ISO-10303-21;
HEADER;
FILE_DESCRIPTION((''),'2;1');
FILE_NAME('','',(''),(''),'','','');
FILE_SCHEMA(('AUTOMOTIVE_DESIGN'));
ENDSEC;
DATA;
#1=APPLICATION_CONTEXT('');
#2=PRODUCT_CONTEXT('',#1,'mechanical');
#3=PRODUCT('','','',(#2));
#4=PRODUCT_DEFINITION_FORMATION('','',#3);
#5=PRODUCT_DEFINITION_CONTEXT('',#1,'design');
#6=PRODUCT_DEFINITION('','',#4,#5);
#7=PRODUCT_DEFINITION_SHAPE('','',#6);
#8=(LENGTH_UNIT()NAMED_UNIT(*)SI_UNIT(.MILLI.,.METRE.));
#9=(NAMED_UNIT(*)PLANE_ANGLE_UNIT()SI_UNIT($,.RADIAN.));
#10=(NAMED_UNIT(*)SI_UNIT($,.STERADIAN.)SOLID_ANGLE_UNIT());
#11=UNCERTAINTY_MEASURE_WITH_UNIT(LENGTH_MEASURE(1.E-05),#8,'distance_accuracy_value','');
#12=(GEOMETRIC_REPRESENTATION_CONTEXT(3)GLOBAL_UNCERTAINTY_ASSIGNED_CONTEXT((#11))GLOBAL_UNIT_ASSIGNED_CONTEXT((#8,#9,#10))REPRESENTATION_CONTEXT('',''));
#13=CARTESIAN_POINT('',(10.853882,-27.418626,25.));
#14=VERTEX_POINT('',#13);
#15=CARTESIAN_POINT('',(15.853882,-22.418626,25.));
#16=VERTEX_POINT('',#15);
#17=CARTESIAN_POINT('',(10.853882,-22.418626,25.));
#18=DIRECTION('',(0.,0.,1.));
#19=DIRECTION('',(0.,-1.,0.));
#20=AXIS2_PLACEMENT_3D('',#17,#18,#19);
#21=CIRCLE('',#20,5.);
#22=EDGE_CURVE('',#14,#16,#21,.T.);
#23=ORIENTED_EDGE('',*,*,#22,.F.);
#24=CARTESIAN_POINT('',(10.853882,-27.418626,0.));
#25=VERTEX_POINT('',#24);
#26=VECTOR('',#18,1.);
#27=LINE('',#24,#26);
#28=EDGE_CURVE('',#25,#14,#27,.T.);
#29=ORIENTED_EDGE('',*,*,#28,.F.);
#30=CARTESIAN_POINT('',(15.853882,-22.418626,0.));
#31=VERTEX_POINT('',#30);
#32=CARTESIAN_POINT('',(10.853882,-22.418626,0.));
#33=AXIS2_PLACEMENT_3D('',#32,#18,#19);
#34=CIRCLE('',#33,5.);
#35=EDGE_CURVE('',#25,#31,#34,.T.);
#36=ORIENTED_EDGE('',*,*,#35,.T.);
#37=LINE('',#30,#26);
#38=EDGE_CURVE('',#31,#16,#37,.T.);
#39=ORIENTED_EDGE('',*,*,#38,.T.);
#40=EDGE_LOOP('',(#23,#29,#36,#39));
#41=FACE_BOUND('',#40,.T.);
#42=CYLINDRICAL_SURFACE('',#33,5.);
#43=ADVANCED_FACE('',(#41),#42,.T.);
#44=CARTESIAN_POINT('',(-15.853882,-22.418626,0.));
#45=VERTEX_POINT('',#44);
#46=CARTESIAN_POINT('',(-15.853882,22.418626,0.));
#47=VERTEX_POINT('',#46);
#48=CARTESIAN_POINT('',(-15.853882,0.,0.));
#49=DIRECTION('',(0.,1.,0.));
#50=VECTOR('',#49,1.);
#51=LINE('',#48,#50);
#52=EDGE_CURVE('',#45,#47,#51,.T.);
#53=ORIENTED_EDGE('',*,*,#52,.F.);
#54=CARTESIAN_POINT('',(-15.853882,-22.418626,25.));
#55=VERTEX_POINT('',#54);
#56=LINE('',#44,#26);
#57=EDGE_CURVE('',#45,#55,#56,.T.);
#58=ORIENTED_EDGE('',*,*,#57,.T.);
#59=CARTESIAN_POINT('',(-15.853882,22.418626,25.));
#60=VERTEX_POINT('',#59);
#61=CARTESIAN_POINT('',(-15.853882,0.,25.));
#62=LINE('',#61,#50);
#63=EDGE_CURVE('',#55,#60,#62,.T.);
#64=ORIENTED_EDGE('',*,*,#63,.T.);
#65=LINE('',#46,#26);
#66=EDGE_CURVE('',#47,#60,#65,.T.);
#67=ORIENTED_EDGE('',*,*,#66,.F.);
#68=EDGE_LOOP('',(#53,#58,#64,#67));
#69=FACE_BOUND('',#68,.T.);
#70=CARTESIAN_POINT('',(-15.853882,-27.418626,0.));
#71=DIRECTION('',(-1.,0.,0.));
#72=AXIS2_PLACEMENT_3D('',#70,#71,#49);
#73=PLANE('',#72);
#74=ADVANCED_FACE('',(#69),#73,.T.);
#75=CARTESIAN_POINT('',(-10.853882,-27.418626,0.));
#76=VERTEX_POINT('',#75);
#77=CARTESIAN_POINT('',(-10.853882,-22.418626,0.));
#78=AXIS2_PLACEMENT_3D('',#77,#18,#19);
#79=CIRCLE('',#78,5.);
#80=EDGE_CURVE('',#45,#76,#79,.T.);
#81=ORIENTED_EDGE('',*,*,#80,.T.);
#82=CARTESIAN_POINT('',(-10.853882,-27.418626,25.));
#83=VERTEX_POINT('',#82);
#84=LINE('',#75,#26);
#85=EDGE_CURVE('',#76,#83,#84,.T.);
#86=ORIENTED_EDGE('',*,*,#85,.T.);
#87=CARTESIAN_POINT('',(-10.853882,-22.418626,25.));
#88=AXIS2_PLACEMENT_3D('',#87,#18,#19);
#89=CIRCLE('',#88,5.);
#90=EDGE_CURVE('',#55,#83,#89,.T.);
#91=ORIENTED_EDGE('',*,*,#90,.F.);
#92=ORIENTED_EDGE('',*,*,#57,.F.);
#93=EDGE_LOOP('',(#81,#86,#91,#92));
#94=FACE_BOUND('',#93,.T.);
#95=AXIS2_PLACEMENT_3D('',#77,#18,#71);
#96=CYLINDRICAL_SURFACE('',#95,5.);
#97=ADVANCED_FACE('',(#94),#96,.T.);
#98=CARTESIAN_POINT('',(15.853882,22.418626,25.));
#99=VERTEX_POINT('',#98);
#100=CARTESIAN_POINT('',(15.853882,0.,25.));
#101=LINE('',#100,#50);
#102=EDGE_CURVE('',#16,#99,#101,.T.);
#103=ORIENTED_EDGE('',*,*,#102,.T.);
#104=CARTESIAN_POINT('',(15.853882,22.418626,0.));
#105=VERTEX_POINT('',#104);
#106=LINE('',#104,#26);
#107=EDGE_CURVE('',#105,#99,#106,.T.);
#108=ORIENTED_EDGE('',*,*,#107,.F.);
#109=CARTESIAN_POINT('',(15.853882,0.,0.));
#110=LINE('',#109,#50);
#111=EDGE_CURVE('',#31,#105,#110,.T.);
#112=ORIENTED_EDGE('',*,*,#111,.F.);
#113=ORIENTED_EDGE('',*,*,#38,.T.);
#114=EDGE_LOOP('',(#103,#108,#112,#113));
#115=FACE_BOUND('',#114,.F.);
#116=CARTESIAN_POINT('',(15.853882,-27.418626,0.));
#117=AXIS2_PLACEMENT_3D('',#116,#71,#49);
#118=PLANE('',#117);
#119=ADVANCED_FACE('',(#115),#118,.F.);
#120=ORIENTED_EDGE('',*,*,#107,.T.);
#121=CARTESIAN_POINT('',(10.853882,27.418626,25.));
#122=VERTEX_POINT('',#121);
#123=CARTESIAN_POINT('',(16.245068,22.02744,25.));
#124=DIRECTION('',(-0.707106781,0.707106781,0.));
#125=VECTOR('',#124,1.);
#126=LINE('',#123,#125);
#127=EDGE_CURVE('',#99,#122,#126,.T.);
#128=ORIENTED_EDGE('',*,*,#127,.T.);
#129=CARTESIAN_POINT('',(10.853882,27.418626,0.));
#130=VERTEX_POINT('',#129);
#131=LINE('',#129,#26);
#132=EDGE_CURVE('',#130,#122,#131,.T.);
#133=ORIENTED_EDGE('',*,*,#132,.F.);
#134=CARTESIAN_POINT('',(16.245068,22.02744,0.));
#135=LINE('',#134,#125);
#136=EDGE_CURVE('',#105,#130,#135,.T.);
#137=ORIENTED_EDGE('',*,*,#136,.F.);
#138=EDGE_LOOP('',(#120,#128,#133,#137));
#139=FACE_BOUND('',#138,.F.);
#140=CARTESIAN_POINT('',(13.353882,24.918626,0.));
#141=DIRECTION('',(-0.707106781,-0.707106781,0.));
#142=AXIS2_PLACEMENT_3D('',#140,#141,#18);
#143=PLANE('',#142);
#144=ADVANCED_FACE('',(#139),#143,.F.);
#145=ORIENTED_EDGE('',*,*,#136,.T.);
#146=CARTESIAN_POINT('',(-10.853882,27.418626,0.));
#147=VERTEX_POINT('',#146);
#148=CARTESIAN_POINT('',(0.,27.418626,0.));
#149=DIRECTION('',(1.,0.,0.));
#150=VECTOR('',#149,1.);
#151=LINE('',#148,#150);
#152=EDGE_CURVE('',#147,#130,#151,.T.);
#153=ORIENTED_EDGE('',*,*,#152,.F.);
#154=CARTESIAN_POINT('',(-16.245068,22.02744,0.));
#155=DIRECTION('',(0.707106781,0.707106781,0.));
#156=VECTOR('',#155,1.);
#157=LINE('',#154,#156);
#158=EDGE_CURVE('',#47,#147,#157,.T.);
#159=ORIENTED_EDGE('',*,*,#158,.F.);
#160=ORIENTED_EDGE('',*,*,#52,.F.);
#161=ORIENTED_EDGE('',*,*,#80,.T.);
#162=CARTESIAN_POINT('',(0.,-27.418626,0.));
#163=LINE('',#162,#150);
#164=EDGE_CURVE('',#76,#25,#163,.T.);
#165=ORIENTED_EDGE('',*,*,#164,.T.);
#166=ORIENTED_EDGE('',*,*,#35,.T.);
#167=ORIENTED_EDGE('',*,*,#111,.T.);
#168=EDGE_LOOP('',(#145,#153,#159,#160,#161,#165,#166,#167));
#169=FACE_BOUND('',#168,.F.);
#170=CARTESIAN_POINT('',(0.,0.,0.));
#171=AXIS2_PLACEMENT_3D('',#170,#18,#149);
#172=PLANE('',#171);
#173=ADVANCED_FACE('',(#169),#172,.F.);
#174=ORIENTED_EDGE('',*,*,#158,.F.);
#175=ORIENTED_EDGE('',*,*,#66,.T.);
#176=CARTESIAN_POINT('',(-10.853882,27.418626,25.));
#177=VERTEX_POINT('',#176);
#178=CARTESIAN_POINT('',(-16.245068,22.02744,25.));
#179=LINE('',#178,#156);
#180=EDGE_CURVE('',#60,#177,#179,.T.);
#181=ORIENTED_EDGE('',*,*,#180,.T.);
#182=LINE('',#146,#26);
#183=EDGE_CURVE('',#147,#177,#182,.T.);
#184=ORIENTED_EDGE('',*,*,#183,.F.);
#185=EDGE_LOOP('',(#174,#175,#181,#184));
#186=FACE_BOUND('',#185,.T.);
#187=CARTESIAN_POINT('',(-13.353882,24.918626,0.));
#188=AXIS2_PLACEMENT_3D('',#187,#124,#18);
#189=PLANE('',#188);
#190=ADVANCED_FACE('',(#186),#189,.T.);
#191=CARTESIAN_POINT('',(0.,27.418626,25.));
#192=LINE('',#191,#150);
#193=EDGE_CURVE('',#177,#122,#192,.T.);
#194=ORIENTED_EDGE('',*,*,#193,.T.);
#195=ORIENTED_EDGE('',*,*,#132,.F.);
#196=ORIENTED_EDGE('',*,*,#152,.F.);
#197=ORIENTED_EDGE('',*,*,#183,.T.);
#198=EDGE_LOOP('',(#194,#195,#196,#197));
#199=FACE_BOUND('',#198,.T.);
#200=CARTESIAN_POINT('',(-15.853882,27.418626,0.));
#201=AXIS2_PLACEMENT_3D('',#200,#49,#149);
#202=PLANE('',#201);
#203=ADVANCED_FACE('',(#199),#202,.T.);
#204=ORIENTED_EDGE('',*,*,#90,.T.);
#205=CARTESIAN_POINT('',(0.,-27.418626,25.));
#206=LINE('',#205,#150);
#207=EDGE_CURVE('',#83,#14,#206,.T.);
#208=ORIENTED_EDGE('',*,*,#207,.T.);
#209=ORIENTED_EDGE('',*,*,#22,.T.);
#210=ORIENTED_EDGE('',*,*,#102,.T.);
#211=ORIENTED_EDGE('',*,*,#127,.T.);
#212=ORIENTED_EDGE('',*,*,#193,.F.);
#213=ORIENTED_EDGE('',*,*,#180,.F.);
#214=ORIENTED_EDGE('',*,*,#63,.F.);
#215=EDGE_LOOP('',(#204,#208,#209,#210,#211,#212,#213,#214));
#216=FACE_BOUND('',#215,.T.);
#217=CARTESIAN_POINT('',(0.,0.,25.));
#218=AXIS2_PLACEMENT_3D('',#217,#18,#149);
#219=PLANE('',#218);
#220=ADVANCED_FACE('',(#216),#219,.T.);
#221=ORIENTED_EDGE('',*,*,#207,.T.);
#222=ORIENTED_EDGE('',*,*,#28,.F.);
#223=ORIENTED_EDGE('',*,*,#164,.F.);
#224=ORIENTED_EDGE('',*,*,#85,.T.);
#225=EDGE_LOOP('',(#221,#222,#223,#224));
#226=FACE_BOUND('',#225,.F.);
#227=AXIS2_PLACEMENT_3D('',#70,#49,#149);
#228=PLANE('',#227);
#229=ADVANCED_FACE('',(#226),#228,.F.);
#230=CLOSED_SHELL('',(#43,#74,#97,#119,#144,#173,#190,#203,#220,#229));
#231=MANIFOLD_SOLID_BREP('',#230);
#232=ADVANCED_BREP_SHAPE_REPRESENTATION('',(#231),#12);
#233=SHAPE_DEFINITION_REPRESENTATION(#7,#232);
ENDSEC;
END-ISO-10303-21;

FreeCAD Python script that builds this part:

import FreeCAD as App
import Part
import Sketcher
from FreeCAD import Vector


def edges_at(feature, points):
    """Names of the edges that pass closest to the given points."""
    edges = feature.Shape.Edges
    near = lambda p: min(range(len(edges)), key=lambda i: edges[i].distToShape(Part.Vertex(*p))[0])
    return sorted({f"Edge{near(p) + 1}" for p in points})

doc = App.newDocument("Part")
body = doc.addObject("PartDesign::Body", "Body")

# Sketch on XY plane
sketch1 = body.newObject("Sketcher::SketchObject", "Sketch")
sketch1.AttachmentSupport = (doc.getObject("XY_Plane"), [""])
sketch1.MapMode = "FlatFace"
sketch1.addGeometry([
    Part.LineSegment(Vector(-16, 27, 0), Vector(-16, -27, 0)),
    Part.LineSegment(Vector(-16, -27, 0), Vector(16, -27, 0)),
    Part.LineSegment(Vector(16, -27, 0), Vector(16, 27, 0)),
    Part.LineSegment(Vector(16, 27, 0), Vector(-16, 27, 0)),
], False)
sketch1.addConstraint([
    Sketcher.Constraint("Coincident", 0, 2, 1, 1),
    Sketcher.Constraint("Coincident", 1, 2, 2, 1),
    Sketcher.Constraint("Coincident", 2, 2, 3, 1),
    Sketcher.Constraint("Coincident", 3, 2, 0, 1),
    Sketcher.Constraint("Vertical", 0),
    Sketcher.Constraint("Horizontal", 1),
    Sketcher.Constraint("Vertical", 2),
    Sketcher.Constraint("Horizontal", 3),
    Sketcher.Constraint("Symmetric", 0, 2, 2, 2, -1, 1),
    Sketcher.Constraint("DistanceX", 1, 1, 1, 2, 31.707764),
    Sketcher.Constraint("DistanceY", 0, 2, 0, 1, 54.837252),
])
pad1 = body.newObject("PartDesign::Pad", "Pad")
pad1.Profile = sketch1
pad1.Length = 25
doc.recompute()

chamfer = body.newObject("PartDesign::Chamfer", "Chamfer")
chamfer.Base = (pad1, edges_at(pad1, [(15.854, 27.419, 12.5), (-15.854, 27.419, 12.5)]))
chamfer.Size = 5
doc.recompute()

fillet = body.newObject("PartDesign::Fillet", "Fillet")
fillet.Base = (chamfer, edges_at(chamfer, [(-15.854, -27.419, 12.5), (15.854, -27.419, 12.5)]))
fillet.Radius = 5

doc.recompute()
